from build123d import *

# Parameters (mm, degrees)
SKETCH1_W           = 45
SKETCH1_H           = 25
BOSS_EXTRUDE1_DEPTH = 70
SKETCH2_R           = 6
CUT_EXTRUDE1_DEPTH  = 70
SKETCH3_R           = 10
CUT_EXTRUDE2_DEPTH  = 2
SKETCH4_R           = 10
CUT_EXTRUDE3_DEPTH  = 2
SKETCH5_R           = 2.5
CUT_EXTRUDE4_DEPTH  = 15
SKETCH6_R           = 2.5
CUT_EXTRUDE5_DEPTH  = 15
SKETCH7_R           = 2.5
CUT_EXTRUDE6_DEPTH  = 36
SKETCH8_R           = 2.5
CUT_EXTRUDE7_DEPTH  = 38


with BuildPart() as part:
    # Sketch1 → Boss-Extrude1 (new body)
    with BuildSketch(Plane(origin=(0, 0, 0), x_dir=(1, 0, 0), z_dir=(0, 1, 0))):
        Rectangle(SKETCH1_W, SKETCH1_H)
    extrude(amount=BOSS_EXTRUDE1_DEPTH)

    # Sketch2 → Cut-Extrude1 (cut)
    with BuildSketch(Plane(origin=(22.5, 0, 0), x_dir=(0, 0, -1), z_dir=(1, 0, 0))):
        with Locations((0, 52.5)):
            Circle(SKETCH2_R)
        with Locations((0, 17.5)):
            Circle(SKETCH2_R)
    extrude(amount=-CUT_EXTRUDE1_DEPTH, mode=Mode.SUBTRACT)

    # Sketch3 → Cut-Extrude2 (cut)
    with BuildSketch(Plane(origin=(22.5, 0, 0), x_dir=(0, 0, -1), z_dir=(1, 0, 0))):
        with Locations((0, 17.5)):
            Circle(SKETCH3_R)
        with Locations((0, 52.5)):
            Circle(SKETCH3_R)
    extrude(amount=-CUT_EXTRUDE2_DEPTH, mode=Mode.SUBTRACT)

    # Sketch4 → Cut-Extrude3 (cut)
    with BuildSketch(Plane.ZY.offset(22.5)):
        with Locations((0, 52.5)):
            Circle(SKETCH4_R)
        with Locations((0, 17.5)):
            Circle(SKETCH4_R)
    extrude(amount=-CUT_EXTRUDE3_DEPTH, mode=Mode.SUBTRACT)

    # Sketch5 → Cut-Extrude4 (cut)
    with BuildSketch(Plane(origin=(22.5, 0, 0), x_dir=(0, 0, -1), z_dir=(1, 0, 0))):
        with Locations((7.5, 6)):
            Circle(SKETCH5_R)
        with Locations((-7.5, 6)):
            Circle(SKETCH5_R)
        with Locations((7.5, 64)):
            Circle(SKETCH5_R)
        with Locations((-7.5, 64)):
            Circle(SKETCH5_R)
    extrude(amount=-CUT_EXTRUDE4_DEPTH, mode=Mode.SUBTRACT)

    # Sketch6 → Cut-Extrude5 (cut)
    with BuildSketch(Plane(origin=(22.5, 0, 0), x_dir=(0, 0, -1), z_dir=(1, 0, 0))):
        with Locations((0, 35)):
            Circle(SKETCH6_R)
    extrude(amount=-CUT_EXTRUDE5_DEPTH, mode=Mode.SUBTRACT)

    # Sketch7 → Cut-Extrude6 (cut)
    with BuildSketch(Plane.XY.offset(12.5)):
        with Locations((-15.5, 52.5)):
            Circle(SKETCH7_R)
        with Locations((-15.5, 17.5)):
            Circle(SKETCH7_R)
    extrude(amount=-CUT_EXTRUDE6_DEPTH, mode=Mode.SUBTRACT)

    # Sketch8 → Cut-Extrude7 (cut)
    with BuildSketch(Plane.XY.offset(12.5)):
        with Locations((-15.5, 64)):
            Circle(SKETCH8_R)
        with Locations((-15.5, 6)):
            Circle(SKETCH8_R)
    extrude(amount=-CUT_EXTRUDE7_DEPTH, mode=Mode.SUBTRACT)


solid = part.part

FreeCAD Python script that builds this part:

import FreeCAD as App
import Part
import Sketcher
from FreeCAD import Vector
Q = App.Units.Quantity

doc = App.newDocument("Part")
body = doc.addObject("PartDesign::Body", "Body")

# Sketch on XZ plane
sketch1 = doc.addObject("Sketcher::SketchObject", "Sketch")
body.addObject(sketch1)
sketch1.AttachmentSupport = (doc.XZ_Plane, [""])
sketch1.MapMode = "FlatFace"
sketch1.addGeometry([
    Part.LineSegment(Vector(-22, -12, 0), Vector(-22, 12, 0)),
    Part.LineSegment(Vector(-22, 12, 0), Vector(22, 12, 0)),
    Part.LineSegment(Vector(22, 12, 0), Vector(22, -12, 0)),
    Part.LineSegment(Vector(22, -12, 0), Vector(-22, -12, 0)),
], False)
sketch1.addConstraint([
    Sketcher.Constraint("Coincident", 0, 2, 1, 1),
    Sketcher.Constraint("Coincident", 1, 2, 2, 1),
    Sketcher.Constraint("Coincident", 2, 2, 3, 1),
    Sketcher.Constraint("Coincident", 3, 2, 0, 1),
    Sketcher.Constraint("Vertical", 0),
    Sketcher.Constraint("Horizontal", 1),
    Sketcher.Constraint("Vertical", 2),
    Sketcher.Constraint("Horizontal", 3),
    Sketcher.Constraint("Symmetric", 0, 2, 2, 2, -1, 1),
    Sketcher.Constraint("DistanceX", 1, 1, 1, 2, Q("45 mm")),
    Sketcher.Constraint("DistanceY", 0, 1, 0, 2, Q("25 mm")),
])
pad1 = doc.addObject("PartDesign::Pad", "Pad")
body.addObject(pad1)
pad1.Profile = sketch1
pad1.Length = 70
pad1.Reversed = True

# Sketch on YZ plane
sketch2 = doc.addObject("Sketcher::SketchObject", "Sketch001")
body.addObject(sketch2)
sketch2.AttachmentSupport = (doc.YZ_Plane, [""])
sketch2.MapMode = "FlatFace"
sketch2.AttachmentOffset = App.Placement(Vector(0, 0, 22.5), App.Rotation())
sketch2.addGeometry([
    Part.Circle(Vector(52, 0, 0), Vector(0, 0, 1), 6),
    Part.Circle(Vector(18, 0, 0), Vector(0, 0, 1), 6),
], False)
sketch2.addConstraint([
    Sketcher.Constraint("Equal", 0, 1),
    Sketcher.Constraint("PointOnObject", 0, 3, -1),
    Sketcher.Constraint("PointOnObject", 1, 3, -1),
    Sketcher.Constraint("Diameter", 0, Q("12 mm")),
    Sketcher.Constraint("DistanceX", 1, 3, 0, 3, Q("35 mm")),
    Sketcher.Constraint("DistanceX", -1, 1, 0, 3, Q("52.5 mm")),
])
pocket1 = doc.addObject("PartDesign::Pocket", "Pocket")
body.addObject(pocket1)
pocket1.Profile = sketch2
pocket1.Length = 70

# Sketch on YZ plane
sketch3 = doc.addObject("Sketcher::SketchObject", "Sketch002")
body.addObject(sketch3)
sketch3.AttachmentSupport = (doc.YZ_Plane, [""])
sketch3.MapMode = "FlatFace"
sketch3.AttachmentOffset = App.Placement(Vector(0, 0, 22.5), App.Rotation())
sketch3.addGeometry([
    Part.Circle(Vector(18, 0, 0), Vector(0, 0, 1), 10),
    Part.Circle(Vector(52, 0, 0), Vector(0, 0, 1), 10),
], False)
sketch3.addConstraint([
    Sketcher.Constraint("Equal", 0, 1),
    Sketcher.Constraint("PointOnObject", 0, 3, -1),
    Sketcher.Constraint("PointOnObject", 1, 3, -1),
    Sketcher.Constraint("Diameter", 0, Q("20 mm")),
    Sketcher.Constraint("DistanceX", 0, 3, 1, 3, Q("35 mm")),
    Sketcher.Constraint("DistanceX", -1, 1, 0, 3, Q("17.5 mm")),
])
pocket2 = doc.addObject("PartDesign::Pocket", "Pocket001")
body.addObject(pocket2)
pocket2.Profile = sketch3
pocket2.Length = 2

# Sketch on YZ plane
sketch4 = doc.addObject("Sketcher::SketchObject", "Sketch003")
body.addObject(sketch4)
sketch4.AttachmentSupport = (doc.YZ_Plane, [""])
sketch4.MapMode = "FlatFace"
sketch4.AttachmentOffset = App.Placement(Vector(0, 0, -22.5), App.Rotation())
sketch4.addGeometry([
    Part.Circle(Vector(52, 0, 0), Vector(0, 0, 1), 10),
    Part.Circle(Vector(18, 0, 0), Vector(0, 0, 1), 10),
], False)
sketch4.addConstraint([
    Sketcher.Constraint("Equal", 0, 1),
    Sketcher.Constraint("PointOnObject", 0, 3, -1),
    Sketcher.Constraint("PointOnObject", 1, 3, -1),
    Sketcher.Constraint("Diameter", 0, Q("20 mm")),
    Sketcher.Constraint("DistanceX", 1, 3, 0, 3, Q("35 mm")),
    Sketcher.Constraint("DistanceX", -1, 1, 0, 3, Q("52.5 mm")),
])
pocket3 = doc.addObject("PartDesign::Pocket", "Pocket002")
body.addObject(pocket3)
pocket3.Profile = sketch4
pocket3.Length = 2
pocket3.Reversed = True

# Sketch on YZ plane
sketch5 = doc.addObject("Sketcher::SketchObject", "Sketch004")
body.addObject(sketch5)
sketch5.AttachmentSupport = (doc.YZ_Plane, [""])
sketch5.MapMode = "FlatFace"
sketch5.AttachmentOffset = App.Placement(Vector(0, 0, 22.5), App.Rotation())
sketch5.addGeometry([
    Part.Circle(Vector(6, -7.5, 0), Vector(0, 0, 1), 2.5),
    Part.Circle(Vector(6, 7.5, 0), Vector(0, 0, 1), 2.5),
    Part.Circle(Vector(64, -7.5, 0), Vector(0, 0, 1), 2.5),
    Part.Circle(Vector(64, 7.5, 0), Vector(0, 0, 1), 2.5),
], False)
sketch5.addConstraint([
    Sketcher.Constraint("Equal", 0, 1),
    Sketcher.Constraint("Equal", 1, 2),
    Sketcher.Constraint("Equal", 2, 3),
    Sketcher.Constraint("Symmetric", 0, 3, 1, 3, -1),
    Sketcher.Constraint("Symmetric", 2, 3, 3, 3, -1),
    Sketcher.Constraint("Horizontal", 0, 3, 2, 3),
    Sketcher.Constraint("Diameter", 0, Q("5 mm")),
    Sketcher.Constraint("DistanceX", -1, 1, 0, 3, Q("6 mm")),
    Sketcher.Constraint("DistanceX", -1, 1, 2, 3, Q("64 mm")),
    Sketcher.Constraint("DistanceY", 0, 3, 1, 3, Q("15 mm")),
])
pocket4 = doc.addObject("PartDesign::Pocket", "Pocket003")
body.addObject(pocket4)
pocket4.Profile = sketch5
pocket4.Length = 15

# Sketch on YZ plane
sketch6 = doc.addObject("Sketcher::SketchObject", "Sketch005")
body.addObject(sketch6)
sketch6.AttachmentSupport = (doc.YZ_Plane, [""])
sketch6.MapMode = "FlatFace"
sketch6.AttachmentOffset = App.Placement(Vector(0, 0, 22.5), App.Rotation())
sketch6.addGeometry(Part.Circle(Vector(35, 0, 0), Vector(0, 0, 1), 2.5), False)
sketch6.addConstraint([
    Sketcher.Constraint("PointOnObject", 0, 3, -1),
    Sketcher.Constraint("Diameter", 0, Q("5 mm")),
    Sketcher.Constraint("DistanceX", -1, 1, 0, 3, Q("35 mm")),
])
pocket5 = doc.addObject("PartDesign::Pocket", "Pocket004")
body.addObject(pocket5)
pocket5.Profile = sketch6
pocket5.Length = 15

# Sketch on XY plane
sketch7 = doc.addObject("Sketcher::SketchObject", "Sketch006")
body.addObject(sketch7)
sketch7.AttachmentSupport = (doc.XY_Plane, [""])
sketch7.MapMode = "FlatFace"
sketch7.AttachmentOffset = App.Placement(Vector(0, 0, 12.5), App.Rotation())
sketch7.addGeometry([
    Part.Circle(Vector(-15.5, 52.5, 0), Vector(0, 0, 1), 2.5),
    Part.Circle(Vector(-15.5, 17.5, 0), Vector(0, 0, 1), 2.5),
], False)
sketch7.addConstraint([
    Sketcher.Constraint("Equal", 0, 1),
    Sketcher.Constraint("Vertical", 0, 3, 1, 3),
    Sketcher.Constraint("Diameter", 0, Q("5 mm")),
    Sketcher.Constraint("DistanceY", 1, 3, 0, 3, Q("35 mm")),
    Sketcher.Constraint("DistanceX", 0, 3, -1, 1, Q("15.5 mm")),
    Sketcher.Constraint("DistanceY", -1, 1, 0, 3, Q("52.5 mm")),
])
pocket6 = doc.addObject("PartDesign::Pocket", "Pocket005")
body.addObject(pocket6)
pocket6.Profile = sketch7
pocket6.Length = 36

# Sketch on XY plane
sketch8 = doc.addObject("Sketcher::SketchObject", "Sketch007")
body.addObject(sketch8)
sketch8.AttachmentSupport = (doc.XY_Plane, [""])
sketch8.MapMode = "FlatFace"
sketch8.AttachmentOffset = App.Placement(Vector(0, 0, 12.5), App.Rotation())
sketch8.addGeometry([
    Part.Circle(Vector(-15.5, 64, 0), Vector(0, 0, 1), 2.5),
    Part.Circle(Vector(-15.5, 6, 0), Vector(0, 0, 1), 2.5),
], False)
sketch8.addConstraint([
    Sketcher.Constraint("Equal", 0, 1),
    Sketcher.Constraint("Vertical", 0, 3, 1, 3),
    Sketcher.Constraint("Diameter", 0, Q("5 mm")),
    Sketcher.Constraint("DistanceY", -1, 1, 0, 3, Q("64 mm")),
    Sketcher.Constraint("DistanceY", -1, 1, 1, 3, Q("6 mm")),
    Sketcher.Constraint("DistanceX", 0, 3, -1, 1, Q("15.5 mm")),
])
pocket7 = doc.addObject("PartDesign::Pocket", "Pocket006")
body.addObject(pocket7)
pocket7.Profile = sketch8
pocket7.Length = 38

doc.recompute()
